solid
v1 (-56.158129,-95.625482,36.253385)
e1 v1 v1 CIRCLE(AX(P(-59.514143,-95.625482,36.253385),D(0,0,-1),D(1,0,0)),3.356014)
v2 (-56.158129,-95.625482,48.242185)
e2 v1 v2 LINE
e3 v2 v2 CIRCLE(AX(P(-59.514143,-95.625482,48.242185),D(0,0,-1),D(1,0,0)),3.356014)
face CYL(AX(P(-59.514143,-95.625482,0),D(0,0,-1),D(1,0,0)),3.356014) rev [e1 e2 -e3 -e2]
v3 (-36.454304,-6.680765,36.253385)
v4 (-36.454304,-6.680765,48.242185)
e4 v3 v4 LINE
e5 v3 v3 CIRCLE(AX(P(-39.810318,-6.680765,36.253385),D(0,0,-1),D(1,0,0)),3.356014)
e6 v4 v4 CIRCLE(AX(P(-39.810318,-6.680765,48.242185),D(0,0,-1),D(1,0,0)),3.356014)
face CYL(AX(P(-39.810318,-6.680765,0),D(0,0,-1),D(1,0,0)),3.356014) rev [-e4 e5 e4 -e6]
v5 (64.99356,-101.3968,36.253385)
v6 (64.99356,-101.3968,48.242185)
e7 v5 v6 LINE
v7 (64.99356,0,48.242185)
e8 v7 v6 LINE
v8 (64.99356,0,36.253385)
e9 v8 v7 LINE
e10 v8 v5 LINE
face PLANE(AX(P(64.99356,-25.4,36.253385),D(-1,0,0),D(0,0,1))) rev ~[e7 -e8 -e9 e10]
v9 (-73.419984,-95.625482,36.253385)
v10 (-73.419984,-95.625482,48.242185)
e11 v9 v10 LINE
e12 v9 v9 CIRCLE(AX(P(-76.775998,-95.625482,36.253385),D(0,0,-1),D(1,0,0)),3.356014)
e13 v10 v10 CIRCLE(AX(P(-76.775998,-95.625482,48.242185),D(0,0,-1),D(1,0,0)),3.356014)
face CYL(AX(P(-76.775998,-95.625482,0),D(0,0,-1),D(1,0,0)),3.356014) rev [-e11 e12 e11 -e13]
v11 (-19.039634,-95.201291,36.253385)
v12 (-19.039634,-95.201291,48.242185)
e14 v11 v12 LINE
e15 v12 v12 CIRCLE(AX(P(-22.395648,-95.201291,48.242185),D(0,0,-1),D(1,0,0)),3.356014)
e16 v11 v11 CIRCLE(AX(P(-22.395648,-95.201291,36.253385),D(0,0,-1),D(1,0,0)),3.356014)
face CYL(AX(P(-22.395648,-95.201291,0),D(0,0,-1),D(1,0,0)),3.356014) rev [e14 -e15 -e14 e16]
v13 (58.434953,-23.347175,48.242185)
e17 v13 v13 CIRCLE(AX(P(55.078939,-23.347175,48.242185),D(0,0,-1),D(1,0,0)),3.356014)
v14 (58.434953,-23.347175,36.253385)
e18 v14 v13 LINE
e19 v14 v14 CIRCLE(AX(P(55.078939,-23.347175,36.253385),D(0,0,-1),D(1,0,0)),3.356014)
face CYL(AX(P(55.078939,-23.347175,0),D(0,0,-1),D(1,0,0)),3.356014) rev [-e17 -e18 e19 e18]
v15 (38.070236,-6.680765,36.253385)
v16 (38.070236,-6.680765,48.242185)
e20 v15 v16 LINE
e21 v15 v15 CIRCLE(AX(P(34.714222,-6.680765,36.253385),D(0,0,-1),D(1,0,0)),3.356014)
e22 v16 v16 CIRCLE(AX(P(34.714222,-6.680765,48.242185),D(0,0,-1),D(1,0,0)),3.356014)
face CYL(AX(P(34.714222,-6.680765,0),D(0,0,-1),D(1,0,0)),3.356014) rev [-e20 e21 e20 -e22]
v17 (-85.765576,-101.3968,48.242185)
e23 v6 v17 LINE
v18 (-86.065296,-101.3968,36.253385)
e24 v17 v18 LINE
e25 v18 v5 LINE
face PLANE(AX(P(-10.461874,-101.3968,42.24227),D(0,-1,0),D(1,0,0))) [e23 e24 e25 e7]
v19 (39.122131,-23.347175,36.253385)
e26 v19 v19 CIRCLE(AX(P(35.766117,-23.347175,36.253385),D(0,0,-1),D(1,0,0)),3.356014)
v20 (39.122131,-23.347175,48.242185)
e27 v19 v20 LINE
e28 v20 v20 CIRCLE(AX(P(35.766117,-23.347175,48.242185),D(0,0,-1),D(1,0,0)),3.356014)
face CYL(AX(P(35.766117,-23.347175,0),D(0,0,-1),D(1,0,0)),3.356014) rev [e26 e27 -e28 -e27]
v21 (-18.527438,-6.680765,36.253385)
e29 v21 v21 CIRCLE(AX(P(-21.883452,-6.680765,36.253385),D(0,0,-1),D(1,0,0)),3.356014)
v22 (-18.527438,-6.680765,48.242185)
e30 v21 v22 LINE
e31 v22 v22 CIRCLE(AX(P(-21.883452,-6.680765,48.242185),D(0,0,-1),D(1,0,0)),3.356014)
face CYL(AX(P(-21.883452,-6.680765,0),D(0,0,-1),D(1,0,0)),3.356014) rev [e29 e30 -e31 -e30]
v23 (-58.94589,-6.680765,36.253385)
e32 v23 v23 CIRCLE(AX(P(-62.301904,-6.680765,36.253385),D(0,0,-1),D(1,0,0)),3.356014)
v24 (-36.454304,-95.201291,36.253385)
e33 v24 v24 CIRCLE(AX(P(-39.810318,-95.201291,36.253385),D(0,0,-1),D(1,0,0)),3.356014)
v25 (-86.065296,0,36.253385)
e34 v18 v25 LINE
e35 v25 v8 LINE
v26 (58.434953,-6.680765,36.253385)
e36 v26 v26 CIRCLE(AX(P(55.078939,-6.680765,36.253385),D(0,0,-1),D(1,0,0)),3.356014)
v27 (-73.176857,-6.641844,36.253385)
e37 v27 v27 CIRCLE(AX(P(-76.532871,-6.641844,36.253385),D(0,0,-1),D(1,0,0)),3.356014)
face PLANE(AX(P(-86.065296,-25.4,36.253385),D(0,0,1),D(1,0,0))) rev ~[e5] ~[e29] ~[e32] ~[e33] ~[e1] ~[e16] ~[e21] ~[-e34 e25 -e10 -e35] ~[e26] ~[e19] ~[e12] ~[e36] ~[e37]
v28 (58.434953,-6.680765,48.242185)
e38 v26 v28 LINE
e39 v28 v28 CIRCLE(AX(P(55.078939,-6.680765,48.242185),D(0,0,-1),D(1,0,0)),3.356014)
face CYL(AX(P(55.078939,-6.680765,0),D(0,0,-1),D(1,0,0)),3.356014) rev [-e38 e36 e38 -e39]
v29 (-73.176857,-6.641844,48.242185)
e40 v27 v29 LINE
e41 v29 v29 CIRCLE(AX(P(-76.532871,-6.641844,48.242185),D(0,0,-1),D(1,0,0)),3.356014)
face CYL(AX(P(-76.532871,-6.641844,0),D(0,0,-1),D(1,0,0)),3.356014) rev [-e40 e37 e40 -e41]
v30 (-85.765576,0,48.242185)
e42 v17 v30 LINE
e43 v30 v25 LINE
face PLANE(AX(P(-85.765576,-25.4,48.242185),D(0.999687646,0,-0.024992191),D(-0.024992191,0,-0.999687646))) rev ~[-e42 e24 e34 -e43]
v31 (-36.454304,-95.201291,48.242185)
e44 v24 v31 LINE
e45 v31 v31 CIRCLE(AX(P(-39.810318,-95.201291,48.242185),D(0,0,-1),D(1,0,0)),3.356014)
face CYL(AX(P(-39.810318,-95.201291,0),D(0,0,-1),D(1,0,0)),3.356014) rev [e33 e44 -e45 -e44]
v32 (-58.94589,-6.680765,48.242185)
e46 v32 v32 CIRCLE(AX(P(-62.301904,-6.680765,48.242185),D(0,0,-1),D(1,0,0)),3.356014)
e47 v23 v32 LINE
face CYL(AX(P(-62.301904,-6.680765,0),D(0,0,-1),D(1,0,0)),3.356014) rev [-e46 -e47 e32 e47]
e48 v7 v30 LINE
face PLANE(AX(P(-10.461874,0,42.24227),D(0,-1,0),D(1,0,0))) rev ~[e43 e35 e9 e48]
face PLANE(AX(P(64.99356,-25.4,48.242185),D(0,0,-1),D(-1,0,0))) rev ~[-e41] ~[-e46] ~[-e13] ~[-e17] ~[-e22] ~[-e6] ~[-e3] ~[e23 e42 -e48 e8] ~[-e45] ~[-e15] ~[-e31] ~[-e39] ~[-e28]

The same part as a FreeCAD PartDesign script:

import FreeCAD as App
import Part
import Sketcher

V = App.Vector
Q = App.Units.Quantity

doc = App.newDocument("Part")
body = doc.addObject("PartDesign::Body", "Body")

sketch1 = body.newObject("Sketcher::SketchObject", "Sketch")
sketch1.AttachmentSupport = (doc.getObject("XZ_Plane"), [""])
sketch1.MapMode = "FlatFace"
sketch1.addGeometry([
    Part.LineSegment(V(65, 48, 0), V(-86, 48, 0)),
    Part.LineSegment(V(-86, 48, 0), V(-86, 36, 0)),
    Part.LineSegment(V(-86, 36, 0), V(65, 36, 0)),
    Part.LineSegment(V(65, 36, 0), V(65, 48, 0)),
], False)
sketch1.addConstraint([
    Sketcher.Constraint("Coincident", 0, 2, 1, 1),
    Sketcher.Constraint("Coincident", 1, 2, 2, 1),
    Sketcher.Constraint("Coincident", 2, 2, 3, 1),
    Sketcher.Constraint("Coincident", 3, 2, 0, 1),
    Sketcher.Constraint("Horizontal", 0),
    Sketcher.Constraint("Horizontal", 2),
    Sketcher.Constraint("Vertical", 3),
    Sketcher.Constraint("DistanceY", 3, 1, 3, 2, Q("0.472 in")),
    Sketcher.Constraint("DistanceX", 1, 2, 0, 2, Q("0.0118 in")),
    Sketcher.Constraint("DistanceX", 0, 2, 0, 1, Q("150.759136 mm")),
    Sketcher.Constraint("DistanceX", -1, 1, 2, 2, Q("64.99356 mm")),
    Sketcher.Constraint("DistanceY", -1, 1, 0, 2, Q("48.242185 mm")),
])
pad1 = body.newObject("PartDesign::Pad", "Pad")
pad1.Profile = sketch1
pad1.Length = Q("1 in")

sketch2 = body.newObject("Sketcher::SketchObject", "Sketch001")
sketch2.AttachmentSupport = (doc.getObject("XZ_Plane"), [""])
sketch2.MapMode = "FlatFace"
sketch2.AttachmentOffset = App.Placement(V(0, 0, 1 * 25.4), App.Rotation())
sketch2.addGeometry([
    Part.LineSegment(V(-86, 36, 0), V(65, 36, 0)),
    Part.LineSegment(V(65, 36, 0), V(65, 48, 0)),
    Part.LineSegment(V(65, 48, 0), V(-86, 48, 0)),
    Part.LineSegment(V(-86, 48, 0), V(-86, 36, 0)),
], False)
sketch2.addConstraint([
    Sketcher.Constraint("Coincident", 0, 2, 1, 1),
    Sketcher.Constraint("Coincident", 1, 2, 2, 1),
    Sketcher.Constraint("Coincident", 2, 2, 3, 1),
    Sketcher.Constraint("Coincident", 3, 2, 0, 1),
    Sketcher.Constraint("Horizontal", 0),
    Sketcher.Constraint("Vertical", 1),
    Sketcher.Constraint("Horizontal", 2),
    Sketcher.Constraint("DistanceY", 1, 1, 1, 2, Q("0.472 in")),
    Sketcher.Constraint("DistanceX", 3, 2, 2, 2, Q("0.0118 in")),
    Sketcher.Constraint("DistanceX", 0, 1, 0, 2, Q("151.058856 mm")),
    Sketcher.Constraint("DistanceX", -1, 1, 0, 2, Q("64.99356 mm")),
    Sketcher.Constraint("DistanceY", -1, 1, 0, 2, Q("36.253385 mm")),
])
pad2 = body.newObject("PartDesign::Pad", "Pad001")
pad2.Profile = sketch2
pad2.Length = Q("2.992 in")

sketch3 = body.newObject("Sketcher::SketchObject", "Sketch002")
sketch3.AttachmentSupport = (doc.getObject("XY_Plane"), [""])
sketch3.MapMode = "FlatFace"
sketch3.addGeometry([
    Part.Circle(V(-76.5, -6.6, 0), V(0, 0, 1), 3.4),
    Part.Circle(V(-62.3, -6.7, 0), V(0, 0, 1), 3.4),
    Part.Circle(V(-76.8, -95.6, 0), V(0, 0, 1), 3.4),
    Part.Circle(V(-59.5, -95.6, 0), V(0, 0, 1), 3.4),
    Part.Circle(V(-39.8, -6.7, 0), V(0, 0, 1), 3.4),
    Part.Circle(V(-21.9, -6.7, 0), V(0, 0, 1), 3.4),
    Part.Circle(V(-39.8, -95.2, 0), V(0, 0, 1), 3.4),
    Part.Circle(V(-22.4, -95.2, 0), V(0, 0, 1), 3.4),
    Part.Circle(V(34.7, -6.7, 0), V(0, 0, 1), 3.4),
    Part.Circle(V(55.1, -6.7, 0), V(0, 0, 1), 3.4),
    Part.Circle(V(55.1, -23.3, 0), V(0, 0, 1), 3.4),
    Part.Circle(V(35.8, -23.3, 0), V(0, 0, 1), 3.4),
], False)
sketch3.addConstraint([
    Sketcher.Constraint("Equal", 0, 1),
    Sketcher.Constraint("Equal", 1, 2),
    Sketcher.Constraint("Equal", 2, 3),
    Sketcher.Constraint("Equal", 3, 4),
    Sketcher.Constraint("Equal", 4, 5),
    Sketcher.Constraint("Equal", 5, 6),
    Sketcher.Constraint("Equal", 6, 7),
    Sketcher.Constraint("Equal", 7, 8),
    Sketcher.Constraint("Equal", 8, 9),
    Sketcher.Constraint("Equal", 9, 10),
    Sketcher.Constraint("Equal", 10, 11),
    Sketcher.Constraint("Horizontal", 2, 3, 3, 3),
    Sketcher.Constraint("Horizontal", 1, 3, 4, 3),
    Sketcher.Constraint("Horizontal", 4, 3, 5, 3),
    Sketcher.Constraint("Horizontal", 6, 3, 7, 3),
    Sketcher.Constraint("Horizontal", 5, 3, 8, 3),
    Sketcher.Constraint("Horizontal", 8, 3, 9, 3),
    Sketcher.Constraint("Horizontal", 10, 3, 11, 3),
    Sketcher.Constraint("Vertical", 4, 3, 6, 3),
    Sketcher.Constraint("Vertical", 9, 3, 10, 3),
    Sketcher.Constraint("Diameter", 0, Q("6.712028 mm")),
    Sketcher.Constraint("DistanceX", 2, 3, -1, 1, Q("76.775998 mm")),
    Sketcher.Constraint("DistanceX", 0, 3, -1, 1, Q("76.532871 mm")),
    Sketcher.Constraint("DistanceX", 4, 3, -1, 1, Q("39.810318 mm")),
    Sketcher.Constraint("DistanceX", 5, 3, -1, 1, Q("21.883452 mm")),
    Sketcher.Constraint("DistanceY", 6, 3, -1, 1, Q("95.201291 mm")),
    Sketcher.Constraint("DistanceX", 7, 3, -1, 1, Q("22.395648 mm")),
    Sketcher.Constraint("DistanceX", -1, 1, 9, 3, Q("55.078939 mm")),
    Sketcher.Constraint("DistanceY", 1, 3, 0, 3, Q("0.038921 mm")),
    Sketcher.Constraint("DistanceY", 2, 3, 0, 3, Q("88.983638 mm")),
    Sketcher.Constraint("DistanceX", 1, 3, 3, 3, Q("2.787761 mm")),
    Sketcher.Constraint("DistanceX", 0, 3, 3, 3, Q("17.018728 mm")),
    Sketcher.Constraint("DistanceY", 3, 3, 6, 3, Q("0.424191 mm")),
    Sketcher.Constraint("DistanceX", 4, 3, 8, 3, Q("74.52454 mm")),
    Sketcher.Constraint("DistanceY", 10, 3, 9, 3, Q("16.66641 mm")),
    Sketcher.Constraint("DistanceX", 11, 3, 10, 3, Q("19.312822 mm")),
])
pocket1 = body.newObject("PartDesign::Pocket", "Pocket")
pocket1.Profile = sketch3
pocket1.Length = Q("2.22 in")
pocket1.Reversed = True

doc.recompute()
